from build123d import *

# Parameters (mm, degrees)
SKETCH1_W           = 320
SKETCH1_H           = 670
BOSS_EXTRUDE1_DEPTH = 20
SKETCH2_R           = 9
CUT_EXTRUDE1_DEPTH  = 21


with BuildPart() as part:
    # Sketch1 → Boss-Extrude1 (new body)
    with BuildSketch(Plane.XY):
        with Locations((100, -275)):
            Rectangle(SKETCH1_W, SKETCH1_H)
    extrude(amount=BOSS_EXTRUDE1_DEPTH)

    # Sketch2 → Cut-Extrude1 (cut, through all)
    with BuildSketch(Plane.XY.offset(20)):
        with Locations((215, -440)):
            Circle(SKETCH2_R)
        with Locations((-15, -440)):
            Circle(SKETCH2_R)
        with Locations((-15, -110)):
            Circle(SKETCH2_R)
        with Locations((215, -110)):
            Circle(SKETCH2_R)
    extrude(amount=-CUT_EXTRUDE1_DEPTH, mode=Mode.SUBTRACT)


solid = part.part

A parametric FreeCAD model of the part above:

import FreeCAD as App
import Part
import Sketcher

V = App.Vector

doc = App.newDocument("Part")
body = doc.addObject("PartDesign::Body", "Body")

# Sketch on XY plane
sketch1 = doc.addObject("Sketcher::SketchObject", "Sketch")
body.addObject(sketch1)
sketch1.AttachmentSupport = (doc.XY_Plane, [""])
sketch1.MapMode = "FlatFace"
sketch1.addGeometry(Part.LineSegment(V(-60, 60, 0), V(-60, -610, 0)), False)
sketch1.addGeometry(Part.LineSegment(V(-60, -610, 0), V(260, -610, 0)), False)
sketch1.addGeometry(Part.LineSegment(V(260, -610, 0), V(260, 60, 0)), False)
sketch1.addGeometry(Part.LineSegment(V(260, 60, 0), V(-60, 60, 0)), False)
sketch1.addConstraint(Sketcher.Constraint("Coincident", 0, 2, 1, 1))
sketch1.addConstraint(Sketcher.Constraint("Coincident", 1, 2, 2, 1))
sketch1.addConstraint(Sketcher.Constraint("Coincident", 2, 2, 3, 1))
sketch1.addConstraint(Sketcher.Constraint("Coincident", 3, 2, 0, 1))
sketch1.addConstraint(Sketcher.Constraint("Vertical", 0))
sketch1.addConstraint(Sketcher.Constraint("Horizontal", 1))
sketch1.addConstraint(Sketcher.Constraint("Vertical", 2))
sketch1.addConstraint(Sketcher.Constraint("Horizontal", 3))
sketch1.addConstraint(Sketcher.Constraint("DistanceX", 1, 1, 1, 2, 320.0))
sketch1.addConstraint(Sketcher.Constraint("DistanceY", 0, 2, 0, 1, 670.0))
sketch1.addConstraint(Sketcher.Constraint("DistanceX", 0, 2, -1, 1, 60.0))
sketch1.addConstraint(Sketcher.Constraint("DistanceY", 0, 2, -1, 1, 610.0))
pad1 = doc.addObject("PartDesign::Pad", "Pad")
body.addObject(pad1)
pad1.Profile = sketch1
pad1.Length = 20

# Sketch on XY plane
sketch2 = doc.addObject("Sketcher::SketchObject", "Sketch001")
body.addObject(sketch2)
sketch2.AttachmentSupport = (doc.XY_Plane, [""])
sketch2.MapMode = "FlatFace"
sketch2.AttachmentOffset = App.Placement(V(0, 0, 20), App.Rotation())
sketch2.addGeometry(Part.Circle(V(215, -440, 0), V(0, 0, 1), 9), False)
sketch2.addGeometry(Part.Circle(V(-15, -440, 0), V(0, 0, 1), 9), False)
sketch2.addGeometry(Part.Circle(V(-15, -110, 0), V(0, 0, 1), 9), False)
sketch2.addGeometry(Part.Circle(V(215, -110, 0), V(0, 0, 1), 9), False)
sketch2.addConstraint(Sketcher.Constraint("Equal", 0, 1))
sketch2.addConstraint(Sketcher.Constraint("Equal", 1, 2))
sketch2.addConstraint(Sketcher.Constraint("Equal", 2, 3))
sketch2.addConstraint(Sketcher.Constraint("Horizontal", 0, 3, 1, 3))
sketch2.addConstraint(Sketcher.Constraint("Horizontal", 2, 3, 3, 3))
sketch2.addConstraint(Sketcher.Constraint("Vertical", 1, 3, 2, 3))
sketch2.addConstraint(Sketcher.Constraint("Vertical", 0, 3, 3, 3))
sketch2.addConstraint(Sketcher.Constraint("Diameter", 0, 18.0))
sketch2.addConstraint(Sketcher.Constraint("DistanceX", -1, 1, 0, 3, 215.0))
sketch2.addConstraint(Sketcher.Constraint("DistanceY", 0, 3, -1, 1, 440.0))
sketch2.addConstraint(Sketcher.Constraint("DistanceX", 1, 3, -1, 1, 15.0))
sketch2.addConstraint(Sketcher.Constraint("DistanceY", 2, 3, -1, 1, 110.0))
pocket1 = doc.addObject("PartDesign::Pocket", "Pocket")
body.addObject(pocket1)
pocket1.Profile = sketch2
pocket1.Type = "ThroughAll"

doc.recompute()
